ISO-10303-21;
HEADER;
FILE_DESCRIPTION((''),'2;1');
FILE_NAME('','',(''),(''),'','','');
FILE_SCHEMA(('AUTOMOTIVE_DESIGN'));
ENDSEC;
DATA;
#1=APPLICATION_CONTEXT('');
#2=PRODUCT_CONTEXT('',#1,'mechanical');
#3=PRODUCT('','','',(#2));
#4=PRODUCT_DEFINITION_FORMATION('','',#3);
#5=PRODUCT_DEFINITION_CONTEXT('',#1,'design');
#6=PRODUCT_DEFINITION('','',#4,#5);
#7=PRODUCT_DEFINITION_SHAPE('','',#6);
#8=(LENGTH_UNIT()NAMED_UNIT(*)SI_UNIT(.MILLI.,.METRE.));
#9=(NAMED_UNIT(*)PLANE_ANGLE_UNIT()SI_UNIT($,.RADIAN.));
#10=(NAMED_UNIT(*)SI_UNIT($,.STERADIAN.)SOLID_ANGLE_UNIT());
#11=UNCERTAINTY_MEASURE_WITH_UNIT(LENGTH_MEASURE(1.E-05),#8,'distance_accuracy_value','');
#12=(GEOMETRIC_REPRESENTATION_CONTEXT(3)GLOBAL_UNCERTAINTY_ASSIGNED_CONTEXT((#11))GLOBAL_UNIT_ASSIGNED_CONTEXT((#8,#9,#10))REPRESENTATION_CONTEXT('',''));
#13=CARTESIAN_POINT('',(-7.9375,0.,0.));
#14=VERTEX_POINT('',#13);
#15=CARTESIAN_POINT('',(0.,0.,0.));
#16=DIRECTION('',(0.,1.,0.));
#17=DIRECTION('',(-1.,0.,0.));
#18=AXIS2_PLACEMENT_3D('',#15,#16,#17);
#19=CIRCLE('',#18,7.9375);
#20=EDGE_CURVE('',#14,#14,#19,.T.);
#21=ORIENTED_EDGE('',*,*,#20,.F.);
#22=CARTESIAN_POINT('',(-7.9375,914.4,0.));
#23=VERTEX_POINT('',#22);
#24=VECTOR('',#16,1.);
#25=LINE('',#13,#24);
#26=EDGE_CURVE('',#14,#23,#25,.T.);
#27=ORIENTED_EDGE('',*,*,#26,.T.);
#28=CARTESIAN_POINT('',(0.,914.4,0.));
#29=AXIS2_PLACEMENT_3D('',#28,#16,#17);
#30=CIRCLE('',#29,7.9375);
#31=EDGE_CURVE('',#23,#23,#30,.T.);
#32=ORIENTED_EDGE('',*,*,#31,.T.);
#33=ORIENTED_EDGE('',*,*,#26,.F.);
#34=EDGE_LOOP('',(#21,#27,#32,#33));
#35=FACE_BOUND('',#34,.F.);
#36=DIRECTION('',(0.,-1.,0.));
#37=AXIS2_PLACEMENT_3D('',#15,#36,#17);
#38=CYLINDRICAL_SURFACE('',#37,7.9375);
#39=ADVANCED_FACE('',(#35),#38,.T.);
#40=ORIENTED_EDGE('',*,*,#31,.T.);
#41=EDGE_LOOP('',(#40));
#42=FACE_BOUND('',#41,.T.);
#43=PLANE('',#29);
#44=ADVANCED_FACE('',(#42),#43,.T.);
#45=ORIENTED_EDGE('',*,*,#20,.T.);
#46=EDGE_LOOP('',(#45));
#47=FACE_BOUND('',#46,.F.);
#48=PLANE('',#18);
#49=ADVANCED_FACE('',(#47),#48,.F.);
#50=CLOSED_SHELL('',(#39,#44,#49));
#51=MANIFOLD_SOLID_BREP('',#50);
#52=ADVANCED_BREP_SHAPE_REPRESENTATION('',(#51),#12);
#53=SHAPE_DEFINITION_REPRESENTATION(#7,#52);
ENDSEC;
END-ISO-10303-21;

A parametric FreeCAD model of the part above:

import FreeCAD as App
import Part
import Sketcher

V = App.Vector
Q = App.Units.Quantity

doc = App.newDocument("Part")
params = doc.addObject("Spreadsheet::Sheet", "Params")
for row, (alias, value) in enumerate([
    ("sketch1_diameter", "0.625 in"),
    ("pad1_length", "36 in"),
], start=1):
    params.set(f"A{row}", alias)
    params.set(f"B{row}", "=" + value)
    params.setAlias(f"B{row}", alias)

body = doc.addObject("PartDesign::Body", "Body")

# Sketch on XZ plane
sketch1 = doc.addObject("Sketcher::SketchObject", "Sketch")
body.addObject(sketch1)
sketch1.AttachmentSupport = (doc.XZ_Plane, [""])
sketch1.MapMode = "FlatFace"
sketch1.addGeometry(Part.Circle(V(0, 0, 0), V(0, 0, 1), 7.9375), False)
sketch1.addConstraint([
    Sketcher.Constraint("Coincident", 0, 3, -1, 1),
    Sketcher.Constraint("Diameter", 0, Q("0.625 in")),
])
sketch1.setExpression("Constraints[1]", "Params.sketch1_diameter")
pad1 = doc.addObject("PartDesign::Pad", "Pad")
body.addObject(pad1)
pad1.Profile = sketch1
pad1.setExpression("Length", "Params.pad1_length")
pad1.Reversed = True

doc.recompute()
